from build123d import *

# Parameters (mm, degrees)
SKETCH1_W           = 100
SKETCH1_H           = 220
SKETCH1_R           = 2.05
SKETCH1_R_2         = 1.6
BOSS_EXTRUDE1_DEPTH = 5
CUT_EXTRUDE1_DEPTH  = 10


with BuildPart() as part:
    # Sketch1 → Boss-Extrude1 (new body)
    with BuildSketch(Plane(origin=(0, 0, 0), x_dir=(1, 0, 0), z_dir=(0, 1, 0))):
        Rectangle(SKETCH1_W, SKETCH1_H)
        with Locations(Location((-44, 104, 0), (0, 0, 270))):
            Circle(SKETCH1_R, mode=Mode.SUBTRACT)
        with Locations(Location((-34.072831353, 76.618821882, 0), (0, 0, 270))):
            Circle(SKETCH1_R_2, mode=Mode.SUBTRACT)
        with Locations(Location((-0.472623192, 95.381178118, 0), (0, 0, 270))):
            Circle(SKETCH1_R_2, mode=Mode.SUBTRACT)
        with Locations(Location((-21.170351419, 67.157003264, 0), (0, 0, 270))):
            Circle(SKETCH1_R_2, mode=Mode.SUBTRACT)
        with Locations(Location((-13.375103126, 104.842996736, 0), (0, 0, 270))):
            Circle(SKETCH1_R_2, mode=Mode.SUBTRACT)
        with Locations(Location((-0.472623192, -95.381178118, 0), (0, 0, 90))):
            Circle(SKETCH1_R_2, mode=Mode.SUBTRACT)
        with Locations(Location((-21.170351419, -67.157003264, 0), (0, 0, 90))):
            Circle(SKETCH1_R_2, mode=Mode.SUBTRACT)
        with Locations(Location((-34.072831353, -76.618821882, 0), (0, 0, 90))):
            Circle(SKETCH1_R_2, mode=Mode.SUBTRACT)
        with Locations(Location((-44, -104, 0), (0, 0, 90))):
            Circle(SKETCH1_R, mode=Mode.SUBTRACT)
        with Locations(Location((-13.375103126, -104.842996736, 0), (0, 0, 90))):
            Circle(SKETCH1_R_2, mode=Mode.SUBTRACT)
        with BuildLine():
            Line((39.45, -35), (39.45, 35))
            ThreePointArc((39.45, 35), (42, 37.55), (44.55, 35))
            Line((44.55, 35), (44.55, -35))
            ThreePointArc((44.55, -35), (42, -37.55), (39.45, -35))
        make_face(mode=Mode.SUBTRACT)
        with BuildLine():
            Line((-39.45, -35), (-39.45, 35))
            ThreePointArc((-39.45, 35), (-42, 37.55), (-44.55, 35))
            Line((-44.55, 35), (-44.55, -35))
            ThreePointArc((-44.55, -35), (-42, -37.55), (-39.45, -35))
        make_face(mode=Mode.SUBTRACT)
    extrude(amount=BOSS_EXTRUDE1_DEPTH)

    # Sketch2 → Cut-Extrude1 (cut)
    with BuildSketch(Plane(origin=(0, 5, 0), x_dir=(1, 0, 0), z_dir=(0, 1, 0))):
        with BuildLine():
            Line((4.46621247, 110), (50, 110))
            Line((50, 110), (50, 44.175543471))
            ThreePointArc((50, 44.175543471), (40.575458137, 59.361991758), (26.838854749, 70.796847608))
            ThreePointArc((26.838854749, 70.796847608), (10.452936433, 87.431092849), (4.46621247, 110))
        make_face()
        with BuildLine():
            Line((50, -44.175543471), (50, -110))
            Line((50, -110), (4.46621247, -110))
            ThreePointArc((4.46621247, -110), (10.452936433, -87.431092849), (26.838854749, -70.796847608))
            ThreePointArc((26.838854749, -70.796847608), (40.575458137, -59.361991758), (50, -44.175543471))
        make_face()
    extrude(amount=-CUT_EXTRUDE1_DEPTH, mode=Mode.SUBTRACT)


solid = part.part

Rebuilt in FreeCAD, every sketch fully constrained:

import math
import FreeCAD as App
import Part
import Sketcher

V = App.Vector
Q = App.Units.Quantity


def add_polygon(sketch, points):
    """Adds a closed chain of lines whose ends are joined by coincident constraints."""
    first, n = sketch.GeometryCount, len(points)
    for a, b in zip(points, points[1:] + points[:1]):
        sketch.addGeometry(Part.LineSegment(App.Vector(*a, 0), App.Vector(*b, 0)), False)
    for i in range(n):
        sketch.addConstraint(Sketcher.Constraint("Coincident", first + i, 2, first + (i + 1) % n, 1))

doc = App.newDocument("Part")
body = doc.addObject("PartDesign::Body", "Body")

sketch1 = body.newObject("Sketcher::SketchObject", "Sketch")
sketch1.AttachmentSupport = (doc.getObject("XZ_Plane"), [""])
sketch1.MapMode = "FlatFace"
add_polygon(sketch1, [(-50, -110), (-50, 110), (50, 110), (50, -110)])
sketch1.addGeometry(Part.Circle(V(-44, 104, 0), V(0, 0, 1), 2), False)
sketch1.addGeometry(Part.Circle(V(-34.1, 76.6, 0), V(0, 0, 1), 1.6), False)
sketch1.addGeometry(Part.Circle(V(-13.4, 104.8, 0), V(0, 0, 1), 1.6), False)
sketch1.addGeometry(Part.Circle(V(-21.2, 67.2, 0), V(0, 0, 1), 1.6), False)
sketch1.addGeometry(Part.Circle(V(-0.5, 95.4, 0), V(0, 0, 1), 1.6), False)
sketch1.addGeometry(Part.LineSegment(V(-39.5, -35, 0), V(-39.5, 35, 0)), False)
sketch1.addGeometry(Part.ArcOfCircle(Part.Circle(V(-42, 35, 0), V(0, 0, 1), 2.5), math.radians(0), math.radians(180)), False)
sketch1.addGeometry(Part.LineSegment(V(-44.5, 35, 0), V(-44.5, -35, 0)), False)
sketch1.addGeometry(Part.ArcOfCircle(Part.Circle(V(-42, -35, 0), V(0, 0, 1), 2.5), math.radians(180), math.radians(360)), False)
sketch1.addGeometry(Part.Circle(V(-34.1, -76.6, 0), V(0, 0, 1), 1.6), False)
sketch1.addGeometry(Part.Circle(V(-44, -104, 0), V(0, 0, 1), 2), False)
sketch1.addGeometry(Part.Circle(V(-21.2, -67.2, 0), V(0, 0, 1), 1.6), False)
sketch1.addGeometry(Part.Circle(V(-13.4, -104.8, 0), V(0, 0, 1), 1.6), False)
sketch1.addGeometry(Part.ArcOfCircle(Part.Circle(V(42, 35, 0), V(0, 0, 1), 2.5), math.radians(0), math.radians(180)), False)
sketch1.addGeometry(Part.LineSegment(V(39.5, 35, 0), V(39.5, -35, 0)), False)
sketch1.addGeometry(Part.ArcOfCircle(Part.Circle(V(42, -35, 0), V(0, 0, 1), 2.5), math.radians(180), math.radians(360)), False)
sketch1.addGeometry(Part.LineSegment(V(44.5, -35, 0), V(44.5, 35, 0)), False)
sketch1.addGeometry(Part.Circle(V(-0.5, -95.4, 0), V(0, 0, 1), 1.6), False)
sketch1.addConstraint([
    Sketcher.Constraint("Tangent", 9, 2, 10, 1),
    Sketcher.Constraint("Tangent", 10, 2, 11, 1),
    Sketcher.Constraint("Tangent", 11, 2, 12, 1),
    Sketcher.Constraint("Tangent", 12, 2, 9, 1),
    Sketcher.Constraint("Tangent", 17, 2, 18, 1),
    Sketcher.Constraint("Tangent", 18, 2, 19, 1),
    Sketcher.Constraint("Tangent", 19, 2, 20, 1),
    Sketcher.Constraint("Tangent", 20, 2, 17, 1),
    Sketcher.Constraint("Vertical", 0),
    Sketcher.Constraint("Horizontal", 1),
    Sketcher.Constraint("Vertical", 2),
    Sketcher.Constraint("Horizontal", 3),
    Sketcher.Constraint("Vertical", 9),
    Sketcher.Constraint("Vertical", 11),
    Sketcher.Constraint("Vertical", 18),
    Sketcher.Constraint("Vertical", 20),
    Sketcher.Constraint("Equal", 5, 6),
    Sketcher.Constraint("Equal", 6, 7),
    Sketcher.Constraint("Equal", 7, 8),
    Sketcher.Constraint("Equal", 8, 13),
    Sketcher.Constraint("Equal", 4, 14),
    Sketcher.Constraint("Equal", 13, 15),
    Sketcher.Constraint("Equal", 15, 16),
    Sketcher.Constraint("Equal", 12, 17),
    Sketcher.Constraint("Equal", 16, 21),
    Sketcher.Constraint("Symmetric", 12, 3, 17, 3, -1, 1),
    Sketcher.Constraint("Symmetric", 0, 2, 2, 2, -1, 1),
    Sketcher.Constraint("Symmetric", 5, 3, 13, 3, -1),
    Sketcher.Constraint("Symmetric", 4, 3, 14, 3, -1),
    Sketcher.Constraint("Symmetric", 7, 3, 15, 3, -1),
    Sketcher.Constraint("Symmetric", 6, 3, 16, 3, -1),
    Sketcher.Constraint("Symmetric", 8, 3, 21, 3, -1),
    Sketcher.Constraint("Horizontal", 10, 3, 17, 3),
    Sketcher.Constraint("Horizontal", 12, 3, 19, 3),
    Sketcher.Constraint("Diameter", 4, Q("4.1 mm")),
    Sketcher.Constraint("Diameter", 5, Q("3.2 mm")),
    Sketcher.Constraint("DistanceX", 1, 1, 1, 2, Q("100 mm")),
    Sketcher.Constraint("DistanceY", 0, 1, 0, 2, Q("220 mm")),
    Sketcher.Constraint("DistanceY", 9, 1, 9, 2, Q("70 mm")),
    Sketcher.Constraint("Radius", 10, Q("2.55 mm")),
    Sketcher.Constraint("DistanceX", 4, 3, -1, 1, Q("44 mm")),
    Sketcher.Constraint("DistanceY", -1, 1, 4, 3, Q("104 mm")),
    Sketcher.Constraint("DistanceX", 10, 3, -1, 1, Q("42 mm")),
    Sketcher.Constraint("DistanceY", 13, 3, 8, 3, Q("172 mm")),
    Sketcher.Constraint("DistanceX", 5, 3, -1, 1, Q("34.072831 mm")),
    Sketcher.Constraint("DistanceY", -1, 1, 5, 3, Q("76.618822 mm")),
    Sketcher.Constraint("DistanceX", 7, 3, -1, 1, Q("21.170351 mm")),
    Sketcher.Constraint("DistanceX", 5, 3, 6, 3, Q("20.697728 mm")),
    Sketcher.Constraint("DistanceY", 7, 3, 5, 3, Q("9.461819 mm")),
    Sketcher.Constraint("DistanceX", 6, 3, 8, 3, Q("12.90248 mm")),
    Sketcher.Constraint("DistanceY", 8, 3, 6, 3, Q("9.461819 mm")),
])
pad1 = body.newObject("PartDesign::Pad", "Pad")
pad1.Profile = sketch1
pad1.Length = 5
pad1.Reversed = True

sketch2 = body.newObject("Sketcher::SketchObject", "Sketch001")
sketch2.AttachmentSupport = (doc.getObject("XZ_Plane"), [""])
sketch2.MapMode = "FlatFace"
sketch2.AttachmentOffset = App.Placement(V(0, 0, -5), App.Rotation())
sketch2.addGeometry([
    Part.LineSegment(V(50, -110, 0), V(4, -110, 0)),
    Part.ArcOfCircle(Part.Circle(V(50, -110, 0), V(0, 0, 1), 46), math.radians(121), math.radians(180)),
    Part.ArcOfCircle(Part.Circle(V(-2, -23, 0), V(0, 0, 1), 56), math.radians(-59), math.radians(-23)),
    Part.LineSegment(V(50, -44, 0), V(50, -110, 0)),
    Part.LineSegment(V(50, 110, 0), V(50, 44, 0)),
    Part.ArcOfCircle(Part.Circle(V(-2, 23, 0), V(0, 0, 1), 56), math.radians(23), math.radians(59)),
    Part.ArcOfCircle(Part.Circle(V(50, 110, 0), V(0, 0, 1), 46), math.radians(-180), math.radians(-121)),
    Part.LineSegment(V(4, 110, 0), V(50, 110, 0)),
], False)
sketch2.addConstraint([
    Sketcher.Constraint("Coincident", 0, 2, 1, 2),
    Sketcher.Constraint("Tangent", 1, 1, 2, 1),
    Sketcher.Constraint("Coincident", 2, 2, 3, 1),
    Sketcher.Constraint("Coincident", 3, 2, 0, 1),
    Sketcher.Constraint("Coincident", 4, 2, 5, 1),
    Sketcher.Constraint("Tangent", 5, 2, 6, 2),
    Sketcher.Constraint("Coincident", 6, 1, 7, 1),
    Sketcher.Constraint("Coincident", 7, 2, 4, 1),
    Sketcher.Constraint("Horizontal", 0),
    Sketcher.Constraint("Vertical", 3),
    Sketcher.Constraint("Vertical", 4),
    Sketcher.Constraint("Horizontal", 7),
    Sketcher.Constraint("Coincident", 3, 2, 1, 3),
    Sketcher.Constraint("Coincident", 7, 2, 6, 3),
    Sketcher.Constraint("Equal", 2, 5),
    Sketcher.Constraint("Equal", 1, 6),
    Sketcher.Constraint("Symmetric", 2, 3, 5, 3, -1),
    Sketcher.Constraint("Vertical", 1, 3, 6, 3),
    Sketcher.Constraint("DistanceX", -1, 1, 1, 3, Q("50 mm")),
    Sketcher.Constraint("DistanceY", 1, 3, -1, 1, Q("110 mm")),
    Sketcher.Constraint("Radius", 1, Q("45.533788 mm")),
    Sketcher.Constraint("Radius", 2, Q("55.890727 mm")),
    Sketcher.Constraint("DistanceY", 3, 2, 3, 1, Q("65.824457 mm")),
])
pocket1 = body.newObject("PartDesign::Pocket", "Pocket")
pocket1.Profile = sketch2
pocket1.Length = 10
pocket1.Reversed = True

doc.recompute()
